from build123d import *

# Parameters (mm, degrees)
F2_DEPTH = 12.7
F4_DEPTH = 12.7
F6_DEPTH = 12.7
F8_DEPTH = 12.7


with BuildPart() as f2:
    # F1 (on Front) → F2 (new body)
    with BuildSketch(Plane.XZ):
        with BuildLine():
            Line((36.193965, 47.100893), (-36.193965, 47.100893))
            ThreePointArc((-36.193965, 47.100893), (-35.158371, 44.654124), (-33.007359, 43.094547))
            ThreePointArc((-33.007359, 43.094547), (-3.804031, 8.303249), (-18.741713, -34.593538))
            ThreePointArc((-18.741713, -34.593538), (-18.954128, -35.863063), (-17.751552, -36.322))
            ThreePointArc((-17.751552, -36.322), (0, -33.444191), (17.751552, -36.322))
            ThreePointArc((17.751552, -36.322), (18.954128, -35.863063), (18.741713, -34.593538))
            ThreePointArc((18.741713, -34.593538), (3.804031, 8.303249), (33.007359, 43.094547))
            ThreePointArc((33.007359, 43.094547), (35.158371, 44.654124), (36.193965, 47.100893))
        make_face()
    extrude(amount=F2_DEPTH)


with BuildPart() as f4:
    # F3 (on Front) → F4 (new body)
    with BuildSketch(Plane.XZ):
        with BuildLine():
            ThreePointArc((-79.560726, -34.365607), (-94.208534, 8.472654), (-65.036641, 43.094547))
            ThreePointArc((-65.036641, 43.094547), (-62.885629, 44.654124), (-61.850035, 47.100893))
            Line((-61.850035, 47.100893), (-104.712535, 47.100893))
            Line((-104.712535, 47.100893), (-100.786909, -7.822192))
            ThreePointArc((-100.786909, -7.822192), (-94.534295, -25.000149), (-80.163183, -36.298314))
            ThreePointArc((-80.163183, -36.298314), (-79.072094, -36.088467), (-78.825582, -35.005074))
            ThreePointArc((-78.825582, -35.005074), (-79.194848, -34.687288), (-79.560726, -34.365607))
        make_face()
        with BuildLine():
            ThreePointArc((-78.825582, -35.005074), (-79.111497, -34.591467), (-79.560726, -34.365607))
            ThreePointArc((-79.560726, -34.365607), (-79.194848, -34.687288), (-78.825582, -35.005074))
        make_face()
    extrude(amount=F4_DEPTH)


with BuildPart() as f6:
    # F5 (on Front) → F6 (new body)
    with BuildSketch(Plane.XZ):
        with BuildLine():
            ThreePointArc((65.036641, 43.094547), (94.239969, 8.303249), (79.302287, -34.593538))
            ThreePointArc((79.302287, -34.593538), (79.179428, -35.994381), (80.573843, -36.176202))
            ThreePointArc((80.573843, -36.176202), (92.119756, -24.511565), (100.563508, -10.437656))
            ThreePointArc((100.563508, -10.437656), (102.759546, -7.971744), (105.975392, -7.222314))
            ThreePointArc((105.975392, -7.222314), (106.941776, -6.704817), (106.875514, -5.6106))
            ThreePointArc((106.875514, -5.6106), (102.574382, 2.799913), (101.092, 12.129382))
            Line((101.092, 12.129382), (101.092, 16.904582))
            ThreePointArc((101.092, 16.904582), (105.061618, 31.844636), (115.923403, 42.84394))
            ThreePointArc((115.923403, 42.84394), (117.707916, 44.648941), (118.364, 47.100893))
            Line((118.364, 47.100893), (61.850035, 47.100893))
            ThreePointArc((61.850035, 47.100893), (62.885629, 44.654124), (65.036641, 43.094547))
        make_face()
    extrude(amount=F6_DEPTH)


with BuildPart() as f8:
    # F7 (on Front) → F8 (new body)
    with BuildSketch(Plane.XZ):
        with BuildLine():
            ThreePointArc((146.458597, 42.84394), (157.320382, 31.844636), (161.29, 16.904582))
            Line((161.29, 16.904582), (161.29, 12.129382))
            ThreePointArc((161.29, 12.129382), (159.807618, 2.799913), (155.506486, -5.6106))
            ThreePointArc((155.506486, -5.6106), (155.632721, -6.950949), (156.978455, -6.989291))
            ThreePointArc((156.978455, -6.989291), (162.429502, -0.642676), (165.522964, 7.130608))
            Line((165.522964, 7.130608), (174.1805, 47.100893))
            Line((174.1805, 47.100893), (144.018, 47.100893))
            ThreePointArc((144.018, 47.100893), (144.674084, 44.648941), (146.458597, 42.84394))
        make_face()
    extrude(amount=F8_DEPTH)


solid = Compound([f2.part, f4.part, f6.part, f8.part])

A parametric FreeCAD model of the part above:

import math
import FreeCAD as App
import Part
import Sketcher
from FreeCAD import Vector
Q = App.Units.Quantity

doc = App.newDocument("Part")
params = doc.addObject("Spreadsheet::Sheet", "Params")
for row, (alias, value) in enumerate([
    ("sketch1_radius", "1.81 in"),
    ("sketch1_radius2", "0.04 in"),
    ("pad1_length", "0.5 in"),
    ("sketch2_radius", "1.81 in"),
    ("sketch2_radius2", "0.04 in"),
    ("sketch2_radius3", "0.0399999 in"),
    ("sketch2_radius4", "1.3124999 in"),
    ("sketch2_width", "1.6875 in"),
    ("pad2_length", "0.5 in"),
    ("sketch3_radius", "2.7000001 in"),
    ("sketch3_radius2", "1.81 in"),
    ("sketch3_radius3", "0.04 in"),
    ("sketch3_radius4", "0.215 in"),
    ("sketch3_radius5", "1.1849999 in"),
    ("pad3_length", "0.5 in"),
    ("sketch4_radius", "1.0000001 in"),
    ("sketch4_radius2", "0.04 in"),
    ("sketch4_radius3", "1.185 in"),
    ("sketch4_radius4", "0.195 in"),
    ("sketch4_width", "1.1875 in"),
    ("pad4_length", "0.5 in"),
], start=1):
    params.set(f"A{row}", alias)
    params.set(f"B{row}", "=" + value)
    params.setAlias(f"B{row}", alias)

body = doc.addObject("PartDesign::Body", "Body")

# Sketch on XZ plane
sketch1 = body.newObject("Sketcher::SketchObject", "Sketch")
sketch1.AttachmentSupport = (doc.getObject("XZ_Plane"), [""])
sketch1.MapMode = "FlatFace"
sketch1.addGeometry(Part.LineSegment(Vector(36.2, 47.1, 0), Vector(-36.2, 47.1, 0)), False)
sketch1.addGeometry(Part.ArcOfCircle(Part.Circle(Vector(-31.3, 47.7, 0), Vector(0, 0, 1), 5), math.radians(-173), math.radians(-110)), False)
sketch1.addGeometry(Part.ArcOfCircle(Part.Circle(Vector(-49, 0, 0), Vector(0, 0, 1), 46), math.radians(-49), math.radians(70)), False)
sketch1.addGeometry(Part.ArcOfCircle(Part.Circle(Vector(-18.1, -35.4, 0), Vector(0, 0, 1), 1), math.radians(131), math.radians(288)), False)
sketch1.addGeometry(Part.ArcOfCircle(Part.Circle(Vector(0, -89.6, 0), Vector(0, 0, 1), 56.2), math.radians(72), math.radians(108)), False)
sketch1.addGeometry(Part.ArcOfCircle(Part.Circle(Vector(18.1, -35.4, 0), Vector(0, 0, 1), 1), math.radians(-108), math.radians(49)), False)
sketch1.addGeometry(Part.ArcOfCircle(Part.Circle(Vector(49, 0, 0), Vector(0, 0, 1), 46), math.radians(110), math.radians(229)), False)
sketch1.addGeometry(Part.ArcOfCircle(Part.Circle(Vector(31.3, 47.7, 0), Vector(0, 0, 1), 5), math.radians(-70), math.radians(-7)), False)
sketch1.addConstraint(Sketcher.Constraint("Coincident", 0, 2, 1, 1))
sketch1.addConstraint(Sketcher.Constraint("Tangent", 1, 2, 2, 2))
sketch1.addConstraint(Sketcher.Constraint("Tangent", 2, 1, 3, 1))
sketch1.addConstraint(Sketcher.Constraint("Tangent", 3, 2, 4, 2))
sketch1.addConstraint(Sketcher.Constraint("Tangent", 4, 1, 5, 1))
sketch1.addConstraint(Sketcher.Constraint("Tangent", 5, 2, 6, 2))
sketch1.addConstraint(Sketcher.Constraint("Tangent", 6, 1, 7, 1))
sketch1.addConstraint(Sketcher.Constraint("Coincident", 7, 2, 0, 1))
sketch1.addConstraint(Sketcher.Constraint("Horizontal", 0))
sketch1.addConstraint(Sketcher.Constraint("Equal", 3, 5))
sketch1.addConstraint(Sketcher.Constraint("Equal", 2, 6))
sketch1.addConstraint(Sketcher.Constraint("Equal", 1, 7))
sketch1.addConstraint(Sketcher.Constraint("Symmetric", 2, 3, 6, 3, -1, 1))
sketch1.addConstraint(Sketcher.Constraint("Symmetric", 3, 3, 5, 3, -2))
sketch1.addConstraint(Sketcher.Constraint("Horizontal", 1, 3, 7, 3))
sketch1.addConstraint(Sketcher.Constraint("Radius", 2, Q("1.81 in")))
sketch1.addConstraint(Sketcher.Constraint("Radius", 3, Q("0.04 in")))
sketch1.addConstraint(Sketcher.Constraint("DistanceX", 2, 3, -1, 1, Q("1.93 in")))
sketch1.addConstraint(Sketcher.Constraint("DistanceY", 3, 2, -1, 1, Q("1.43 in")))
sketch1.addConstraint(Sketcher.Constraint("Radius", 1, Q("4.952995 mm")))
sketch1.addConstraint(Sketcher.Constraint("Radius", 4, Q("56.188472 mm")))
sketch1.addConstraint(Sketcher.Constraint("DistanceX", 0, 2, 0, 1, Q("72.38793 mm")))
sketch1.addConstraint(Sketcher.Constraint("DistanceX", 1, 3, -1, 1, Q("31.282029 mm")))
sketch1.setExpression("Constraints[15]", "Params.sketch1_radius")
sketch1.setExpression("Constraints[16]", "Params.sketch1_radius2")
pad1 = body.newObject("PartDesign::Pad", "Pad")
pad1.Profile = sketch1
pad1.setExpression("Length", "Params.pad1_length")
body2 = doc.addObject("PartDesign::Body", "Body001")

# Sketch on XZ plane
sketch2 = body2.newObject("Sketcher::SketchObject", "Sketch001")
sketch2.AttachmentSupport = (doc.getObject("XZ_Plane001"), [""])
sketch2.MapMode = "FlatFace"
sketch2.addGeometry(Part.ArcOfCircle(Part.Circle(Vector(-49, 0, 0), Vector(0, 0, 1), 46), math.radians(110), math.radians(228)), False)
sketch2.addGeometry(Part.ArcOfCircle(Part.Circle(Vector(-66.8, 47.7, 0), Vector(0, 0, 1), 5), math.radians(-70), math.radians(-7)), False)
sketch2.addGeometry(Part.LineSegment(Vector(-61.9, 47.1, 0), Vector(-104.7, 47.1, 0)), False)
sketch2.addGeometry(Part.LineSegment(Vector(-104.7, 47.1, 0), Vector(-100.8, -7.8, 0)), False)
sketch2.addGeometry(Part.ArcOfCircle(Part.Circle(Vector(-67.5, -5.4, 0), Vector(0, 0, 1), 33.3), math.radians(-176), math.radians(-112)), False)
sketch2.addGeometry(Part.ArcOfCircle(Part.Circle(Vector(-79.8, -35.4, 0), Vector(0, 0, 1), 1), math.radians(-112), math.radians(20)), False)
sketch2.addGeometry(Part.ArcOfCircle(Part.Circle(Vector(-79.8, -35.4, 0), Vector(0, 0, 1), 1), math.radians(20), math.radians(78)), False)
sketch2.addConstraint(Sketcher.Constraint("Tangent", 0, 1, 1, 1))
sketch2.addConstraint(Sketcher.Constraint("Coincident", 1, 2, 2, 1))
sketch2.addConstraint(Sketcher.Constraint("Coincident", 2, 2, 3, 1))
sketch2.addConstraint(Sketcher.Constraint("Tangent", 3, 2, 4, 1))
sketch2.addConstraint(Sketcher.Constraint("Tangent", 4, 2, 5, 1))
sketch2.addConstraint(Sketcher.Constraint("Tangent", 5, 2, 6, 1))
sketch2.addConstraint(Sketcher.Constraint("Coincident", 6, 2, 0, 2))
sketch2.addConstraint(Sketcher.Constraint("Horizontal", 2))
sketch2.addConstraint(Sketcher.Constraint("PointOnObject", 0, 3, -1))
sketch2.addConstraint(Sketcher.Constraint("Radius", 0, Q("1.81 in")))
sketch2.addConstraint(Sketcher.Constraint("Radius", 5, Q("0.04 in")))
sketch2.addConstraint(Sketcher.Constraint("Radius", 6, Q("0.0399999 in")))
sketch2.addConstraint(Sketcher.Constraint("Radius", 4, Q("1.3124999 in")))
sketch2.addConstraint(Sketcher.Constraint("DistanceX", 2, 2, 2, 1, Q("1.6875 in")))
sketch2.addConstraint(Sketcher.Constraint("DistanceX", 0, 3, -1, 1, Q("1.93 in")))
sketch2.addConstraint(Sketcher.Constraint("Radius", 1, Q("4.952995 mm")))
sketch2.addConstraint(Sketcher.Constraint("Distance", 3, Q("55.063198 mm")))
sketch2.addConstraint(Sketcher.Constraint("DistanceX", 5, 3, -1, 1, Q("79.7783 mm")))
sketch2.addConstraint(Sketcher.Constraint("DistanceX", 4, 3, 0, 1, Q("2.4976 mm")))
sketch2.addConstraint(Sketcher.Constraint("DistanceX", 4, 2, 5, 2, Q("1.337601 mm")))
sketch2.addConstraint(Sketcher.Constraint("DistanceX", 1, 3, -1, 1, Q("66.761971 mm")))
sketch2.addConstraint(Sketcher.Constraint("DistanceY", 4, 3, -1, 1, Q("5.44546 mm")))
sketch2.setExpression("Constraints[9]", "Params.sketch2_radius")
sketch2.setExpression("Constraints[10]", "Params.sketch2_radius2")
sketch2.setExpression("Constraints[11]", "Params.sketch2_radius3")
sketch2.setExpression("Constraints[12]", "Params.sketch2_radius4")
sketch2.setExpression("Constraints[13]", "Params.sketch2_width")
pad2 = body2.newObject("PartDesign::Pad", "Pad001")
pad2.Profile = sketch2
pad2.setExpression("Length", "Params.pad2_length")
body3 = doc.addObject("PartDesign::Body", "Body002")

# Sketch on XZ plane
sketch3 = body3.newObject("Sketcher::SketchObject", "Sketch002")
sketch3.AttachmentSupport = (doc.getObject("XZ_Plane002"), [""])
sketch3.MapMode = "FlatFace"
sketch3.addGeometry(Part.ArcOfCircle(Part.Circle(Vector(49, 0, 0), Vector(0, 0, 1), 46), math.radians(-49), math.radians(70)), False)
sketch3.addGeometry(Part.ArcOfCircle(Part.Circle(Vector(80, -35.4, 0), Vector(0, 0, 1), 1), math.radians(131), math.radians(306)), False)
sketch3.addGeometry(Part.ArcOfCircle(Part.Circle(Vector(38, 17.6, 0), Vector(0, 0, 1), 68.6), math.radians(-52), math.radians(-24)), False)
sketch3.addGeometry(Part.ArcOfCircle(Part.Circle(Vector(105.5, -12.7, 0), Vector(0, 0, 1), 5.5), math.radians(86), math.radians(156)), False)
sketch3.addGeometry(Part.ArcOfCircle(Part.Circle(Vector(106.1, -6.2, 0), Vector(0, 0, 1), 1), math.radians(-94), math.radians(36)), False)
sketch3.addGeometry(Part.ArcOfCircle(Part.Circle(Vector(131.2, 12.1, 0), Vector(0, 0, 1), 30.1), math.radians(180), math.radians(216)), False)
sketch3.addGeometry(Part.LineSegment(Vector(101.1, 12.1, 0), Vector(101.1, 16.9, 0)), False)
sketch3.addGeometry(Part.ArcOfCircle(Part.Circle(Vector(131.2, 16.9, 0), Vector(0, 0, 1), 30.1), math.radians(120), math.radians(180)), False)
sketch3.addGeometry(Part.ArcOfCircle(Part.Circle(Vector(113.4, 47.1, 0), Vector(0, 0, 1), 5), math.radians(-60), math.radians(0)), False)
sketch3.addGeometry(Part.LineSegment(Vector(118.4, 47.1, 0), Vector(61.9, 47.1, 0)), False)
sketch3.addGeometry(Part.ArcOfCircle(Part.Circle(Vector(66.8, 47.7, 0), Vector(0, 0, 1), 5), math.radians(-173), math.radians(-110)), False)
sketch3.addConstraint(Sketcher.Constraint("Tangent", 0, 1, 1, 1))
sketch3.addConstraint(Sketcher.Constraint("Coincident", 1, 2, 2, 1))
sketch3.addConstraint(Sketcher.Constraint("Tangent", 2, 2, 3, 2))
sketch3.addConstraint(Sketcher.Constraint("Tangent", 3, 1, 4, 1))
sketch3.addConstraint(Sketcher.Constraint("Tangent", 4, 2, 5, 2))
sketch3.addConstraint(Sketcher.Constraint("Tangent", 5, 1, 6, 1))
sketch3.addConstraint(Sketcher.Constraint("Tangent", 6, 2, 7, 2))
sketch3.addConstraint(Sketcher.Constraint("Tangent", 7, 1, 8, 1))
sketch3.addConstraint(Sketcher.Constraint("Coincident", 8, 2, 9, 1))
sketch3.addConstraint(Sketcher.Constraint("Coincident", 9, 2, 10, 1))
sketch3.addConstraint(Sketcher.Constraint("Tangent", 10, 2, 0, 2))
sketch3.addConstraint(Sketcher.Constraint("Vertical", 6))
sketch3.addConstraint(Sketcher.Constraint("Horizontal", 9))
sketch3.addConstraint(Sketcher.Constraint("Equal", 1, 4))
sketch3.addConstraint(Sketcher.Constraint("Equal", 5, 7))
sketch3.addConstraint(Sketcher.Constraint("PointOnObject", 0, 3, -1))
sketch3.addConstraint(Sketcher.Constraint("Radius", 2, Q("2.7000001 in")))
sketch3.addConstraint(Sketcher.Constraint("Radius", 0, Q("1.81 in")))
sketch3.addConstraint(Sketcher.Constraint("Radius", 1, Q("0.04 in")))
sketch3.addConstraint(Sketcher.Constraint("Radius", 3, Q("0.215 in")))
sketch3.addConstraint(Sketcher.Constraint("Radius", 5, Q("1.1849999 in")))
sketch3.addConstraint(Sketcher.Constraint("Radius", 8, Q("0.195 in")))
sketch3.addConstraint(Sketcher.Constraint("DistanceY", 6, 1, 6, 2, Q("0.188 in")))
sketch3.addConstraint(Sketcher.Constraint("DistanceX", -1, 1, 0, 3, Q("1.93 in")))
sketch3.addConstraint(Sketcher.Constraint("DistanceX", -1, 1, 5, 1, Q("3.98 in")))
sketch3.addConstraint(Sketcher.Constraint("DistanceX", -1, 1, 8, 2, Q("4.66 in")))
sketch3.addConstraint(Sketcher.Constraint("DistanceY", 4, 3, 7, 3, Q("0.91 in")))
sketch3.addConstraint(Sketcher.Constraint("Radius", 10, Q("4.952995 mm")))
sketch3.addConstraint(Sketcher.Constraint("DistanceY", 1, 2, -1, 1, Q("36.176202 mm")))
sketch3.addConstraint(Sketcher.Constraint("DistanceY", 4, 2, -1, 1, Q("5.6106 mm")))
sketch3.addConstraint(Sketcher.Constraint("DistanceY", 1, 3, 3, 3, Q("22.6914 mm")))
sketch3.addConstraint(Sketcher.Constraint("DistanceY", 4, 3, 2, 3, Q("23.763599 mm")))
sketch3.addConstraint(Sketcher.Constraint("DistanceX", 9, 2, 9, 1, Q("56.513965 mm")))
sketch3.addConstraint(Sketcher.Constraint("DistanceX", -1, 1, 10, 3, Q("66.761971 mm")))
sketch3.setExpression("Constraints[16]", "Params.sketch3_radius")
sketch3.setExpression("Constraints[17]", "Params.sketch3_radius2")
sketch3.setExpression("Constraints[18]", "Params.sketch3_radius3")
sketch3.setExpression("Constraints[19]", "Params.sketch3_radius4")
sketch3.setExpression("Constraints[20]", "Params.sketch3_radius5")
pad3 = body3.newObject("PartDesign::Pad", "Pad002")
pad3.Profile = sketch3
pad3.setExpression("Length", "Params.pad3_length")
body4 = doc.addObject("PartDesign::Body", "Body003")

# Sketch on XZ plane
sketch4 = body4.newObject("Sketcher::SketchObject", "Sketch003")
sketch4.AttachmentSupport = (doc.getObject("XZ_Plane003"), [""])
sketch4.MapMode = "FlatFace"
sketch4.addGeometry(Part.ArcOfCircle(Part.Circle(Vector(131.2, 16.9, 0), Vector(0, 0, 1), 30.1), math.radians(0), math.radians(60)), False)
sketch4.addGeometry(Part.LineSegment(Vector(161.3, 16.9, 0), Vector(161.3, 12.1, 0)), False)
sketch4.addGeometry(Part.ArcOfCircle(Part.Circle(Vector(131.2, 12.1, 0), Vector(0, 0, 1), 30.1), math.radians(-36), math.radians(0)), False)
sketch4.addGeometry(Part.ArcOfCircle(Part.Circle(Vector(156.3, -6.2, 0), Vector(0, 0, 1), 1), math.radians(144), math.radians(310)), False)
sketch4.addGeometry(Part.ArcOfCircle(Part.Circle(Vector(140.7, 12.5, 0), Vector(0, 0, 1), 25.4), math.radians(-50), math.radians(-12)), False)
sketch4.addGeometry(Part.LineSegment(Vector(165.5, 7.1, 0), Vector(174.2, 47.1, 0)), False)
sketch4.addGeometry(Part.LineSegment(Vector(174.2, 47.1, 0), Vector(144, 47.1, 0)), False)
sketch4.addGeometry(Part.ArcOfCircle(Part.Circle(Vector(149, 47.1, 0), Vector(0, 0, 1), 5), math.radians(-180), math.radians(-120)), False)
sketch4.addConstraint(Sketcher.Constraint("Tangent", 0, 1, 1, 1))
sketch4.addConstraint(Sketcher.Constraint("Tangent", 1, 2, 2, 2))
sketch4.addConstraint(Sketcher.Constraint("Tangent", 2, 1, 3, 1))
sketch4.addConstraint(Sketcher.Constraint("Tangent", 3, 2, 4, 1))
sketch4.addConstraint(Sketcher.Constraint("Tangent", 4, 2, 5, 1))
sketch4.addConstraint(Sketcher.Constraint("Coincident", 5, 2, 6, 1))
sketch4.addConstraint(Sketcher.Constraint("Coincident", 6, 2, 7, 1))
sketch4.addConstraint(Sketcher.Constraint("Tangent", 7, 2, 0, 2))
sketch4.addConstraint(Sketcher.Constraint("Vertical", 1))
sketch4.addConstraint(Sketcher.Constraint("Horizontal", 6))
sketch4.addConstraint(Sketcher.Constraint("Equal", 0, 2))
sketch4.addConstraint(Sketcher.Constraint("Radius", 4, Q("1.0000001 in")))
sketch4.addConstraint(Sketcher.Constraint("Radius", 3, Q("0.04 in")))
sketch4.addConstraint(Sketcher.Constraint("Radius", 0, Q("1.185 in")))
sketch4.addConstraint(Sketcher.Constraint("Radius", 7, Q("0.195 in")))
sketch4.addConstraint(Sketcher.Constraint("DistanceX", 6, 2, 6, 1, Q("1.1875 in")))
sketch4.addConstraint(Sketcher.Constraint("DistanceY", 1, 2, 1, 1, Q("0.188 in")))
sketch4.addConstraint(Sketcher.Constraint("DistanceX", -1, 1, 0, 1, Q("6.35 in")))
sketch4.addConstraint(Sketcher.Constraint("DistanceX", -1, 1, 6, 2, Q("5.67 in")))
sketch4.addConstraint(Sketcher.Constraint("DistanceY", 3, 3, 0, 3, Q("0.91 in")))
sketch4.addConstraint(Sketcher.Constraint("DistanceY", 2, 1, -1, 1, Q("5.6106 mm")))
sketch4.addConstraint(Sketcher.Constraint("DistanceY", 3, 2, 4, 2, Q("14.119899 mm")))
sketch4.addConstraint(Sketcher.Constraint("DistanceX", -1, 1, 4, 3, Q("140.698609 mm")))
sketch4.setExpression("Constraints[11]", "Params.sketch4_radius")
sketch4.setExpression("Constraints[12]", "Params.sketch4_radius2")
sketch4.setExpression("Constraints[13]", "Params.sketch4_radius3")
sketch4.setExpression("Constraints[14]", "Params.sketch4_radius4")
sketch4.setExpression("Constraints[15]", "Params.sketch4_width")
pad4 = body4.newObject("PartDesign::Pad", "Pad003")
pad4.Profile = sketch4
pad4.setExpression("Length", "Params.pad4_length")

doc.recompute()
